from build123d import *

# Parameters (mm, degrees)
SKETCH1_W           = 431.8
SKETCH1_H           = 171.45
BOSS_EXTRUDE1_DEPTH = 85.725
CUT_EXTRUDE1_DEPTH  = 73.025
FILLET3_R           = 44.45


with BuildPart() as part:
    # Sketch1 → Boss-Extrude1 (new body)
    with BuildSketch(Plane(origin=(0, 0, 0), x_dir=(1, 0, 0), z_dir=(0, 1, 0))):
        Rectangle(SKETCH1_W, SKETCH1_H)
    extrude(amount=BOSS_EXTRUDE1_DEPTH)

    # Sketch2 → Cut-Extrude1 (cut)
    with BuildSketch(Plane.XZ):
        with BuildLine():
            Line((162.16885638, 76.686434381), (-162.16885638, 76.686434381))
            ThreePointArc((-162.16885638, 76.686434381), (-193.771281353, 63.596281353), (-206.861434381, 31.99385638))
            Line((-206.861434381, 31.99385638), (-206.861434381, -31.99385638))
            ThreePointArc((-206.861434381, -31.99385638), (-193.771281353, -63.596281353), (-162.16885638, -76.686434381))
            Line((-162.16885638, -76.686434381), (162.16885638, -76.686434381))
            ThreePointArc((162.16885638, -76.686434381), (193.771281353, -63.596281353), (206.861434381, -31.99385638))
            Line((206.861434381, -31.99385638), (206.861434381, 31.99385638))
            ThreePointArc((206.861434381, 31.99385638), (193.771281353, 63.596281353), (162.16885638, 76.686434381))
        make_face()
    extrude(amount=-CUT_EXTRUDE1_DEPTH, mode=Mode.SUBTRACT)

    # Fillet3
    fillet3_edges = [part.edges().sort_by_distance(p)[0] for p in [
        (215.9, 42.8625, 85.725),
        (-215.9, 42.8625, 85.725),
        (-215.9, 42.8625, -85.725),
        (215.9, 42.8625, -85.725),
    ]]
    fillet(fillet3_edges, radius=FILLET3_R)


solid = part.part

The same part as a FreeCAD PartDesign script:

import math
import FreeCAD as App
import Part
import Sketcher

V = App.Vector
Q = App.Units.Quantity


def edges_at(feature, points):
    """Names of the edges that pass closest to the given points."""
    edges = feature.Shape.Edges
    near = lambda p: min(range(len(edges)), key=lambda i: edges[i].distToShape(Part.Vertex(*p))[0])
    return sorted({f"Edge{near(p) + 1}" for p in points})


def add_polygon(sketch, points):
    """Adds a closed chain of lines whose ends are joined by coincident constraints."""
    first, n = sketch.GeometryCount, len(points)
    for a, b in zip(points, points[1:] + points[:1]):
        sketch.addGeometry(Part.LineSegment(App.Vector(*a, 0), App.Vector(*b, 0)), False)
    for i in range(n):
        sketch.addConstraint(Sketcher.Constraint("Coincident", first + i, 2, first + (i + 1) % n, 1))

doc = App.newDocument("Part")
body = doc.addObject("PartDesign::Body", "Body")

sketch1 = body.newObject("Sketcher::SketchObject", "Sketch")
sketch1.AttachmentSupport = (doc.getObject("XZ_Plane"), [""])
sketch1.MapMode = "FlatFace"
add_polygon(sketch1, [(-215.9, -85.725), (-215.9, 85.725), (215.9, 85.725), (215.9, -85.725)])
sketch1.addConstraint(Sketcher.Constraint("Vertical", 0))
sketch1.addConstraint(Sketcher.Constraint("Horizontal", 1))
sketch1.addConstraint(Sketcher.Constraint("Vertical", 2))
sketch1.addConstraint(Sketcher.Constraint("Horizontal", 3))
sketch1.addConstraint(Sketcher.Constraint("Symmetric", 0, 2, 2, 2, -1, 1))
sketch1.addConstraint(Sketcher.Constraint("DistanceX", 1, 1, 1, 2, Q("17 in")))
sketch1.addConstraint(Sketcher.Constraint("DistanceY", 0, 1, 0, 2, Q("6.75 in")))
pad1 = body.newObject("PartDesign::Pad", "Pad")
pad1.Profile = sketch1
pad1.Length = Q("3.375 in")
pad1.Reversed = True

sketch2 = body.newObject("Sketcher::SketchObject", "Sketch001")
sketch2.AttachmentSupport = (doc.getObject("XZ_Plane"), [""])
sketch2.MapMode = "FlatFace"
sketch2.addGeometry(Part.LineSegment(V(162.168856, 76.686434, 0), V(-162.168856, 76.686434, 0)), False)
sketch2.addGeometry(Part.ArcOfCircle(Part.Circle(V(-162.168856, 31.993856, 0), V(0, 0, 1), 44.692578), math.radians(90), math.radians(180)), False)
sketch2.addGeometry(Part.LineSegment(V(-206.861434, 31.993856, 0), V(-206.861434, -31.993856, 0)), False)
sketch2.addGeometry(Part.ArcOfCircle(Part.Circle(V(-162.168856, -31.993856, 0), V(0, 0, 1), 44.692578), math.radians(-180), math.radians(-90)), False)
sketch2.addGeometry(Part.LineSegment(V(-162.168856, -76.686434, 0), V(162.168856, -76.686434, 0)), False)
sketch2.addGeometry(Part.ArcOfCircle(Part.Circle(V(162.168856, -31.993856, 0), V(0, 0, 1), 44.692578), math.radians(-90), math.radians(0)), False)
sketch2.addGeometry(Part.LineSegment(V(206.861434, -31.993856, 0), V(206.861434, 31.993856, 0)), False)
sketch2.addGeometry(Part.ArcOfCircle(Part.Circle(V(162.168856, 31.993856, 0), V(0, 0, 1), 44.692578), math.radians(0), math.radians(90)), False)
sketch2.addConstraint(Sketcher.Constraint("Tangent", 0, 2, 1, 1))
sketch2.addConstraint(Sketcher.Constraint("Tangent", 1, 2, 2, 1))
sketch2.addConstraint(Sketcher.Constraint("Tangent", 2, 2, 3, 1))
sketch2.addConstraint(Sketcher.Constraint("Tangent", 3, 2, 4, 1))
sketch2.addConstraint(Sketcher.Constraint("Tangent", 4, 2, 5, 1))
sketch2.addConstraint(Sketcher.Constraint("Tangent", 5, 2, 6, 1))
sketch2.addConstraint(Sketcher.Constraint("Tangent", 6, 2, 7, 1))
sketch2.addConstraint(Sketcher.Constraint("Tangent", 7, 2, 0, 1))
sketch2.addConstraint(Sketcher.Constraint("Horizontal", 0))
sketch2.addConstraint(Sketcher.Constraint("Vertical", 2))
sketch2.addConstraint(Sketcher.Constraint("Horizontal", 4))
sketch2.addConstraint(Sketcher.Constraint("Vertical", 6))
sketch2.addConstraint(Sketcher.Constraint("Equal", 1, 3))
sketch2.addConstraint(Sketcher.Constraint("Equal", 3, 5))
sketch2.addConstraint(Sketcher.Constraint("Equal", 5, 7))
sketch2.addConstraint(Sketcher.Constraint("Symmetric", 1, 3, 5, 3, -1, 1))
sketch2.addConstraint(Sketcher.Constraint("Radius", 1, 44.692578))
sketch2.addConstraint(Sketcher.Constraint("DistanceX", 0, 2, 0, 1, 324.337713))
sketch2.addConstraint(Sketcher.Constraint("DistanceY", 2, 2, 2, 1, 63.987713))
pocket1 = body.newObject("PartDesign::Pocket", "Pocket")
pocket1.Profile = sketch2
pocket1.Length = Q("2.875 in")
doc.recompute()

fillet = body.newObject("PartDesign::Fillet", "Fillet")
fillet.Base = (pocket1, edges_at(pocket1, [
    (215.9, 42.862, 85.725),
    (-215.9, 42.862, 85.725),
    (-215.9, 42.862, -85.725),
    (215.9, 42.862, -85.725),
]))
fillet.Radius = Q("1.75 in")

doc.recompute()
